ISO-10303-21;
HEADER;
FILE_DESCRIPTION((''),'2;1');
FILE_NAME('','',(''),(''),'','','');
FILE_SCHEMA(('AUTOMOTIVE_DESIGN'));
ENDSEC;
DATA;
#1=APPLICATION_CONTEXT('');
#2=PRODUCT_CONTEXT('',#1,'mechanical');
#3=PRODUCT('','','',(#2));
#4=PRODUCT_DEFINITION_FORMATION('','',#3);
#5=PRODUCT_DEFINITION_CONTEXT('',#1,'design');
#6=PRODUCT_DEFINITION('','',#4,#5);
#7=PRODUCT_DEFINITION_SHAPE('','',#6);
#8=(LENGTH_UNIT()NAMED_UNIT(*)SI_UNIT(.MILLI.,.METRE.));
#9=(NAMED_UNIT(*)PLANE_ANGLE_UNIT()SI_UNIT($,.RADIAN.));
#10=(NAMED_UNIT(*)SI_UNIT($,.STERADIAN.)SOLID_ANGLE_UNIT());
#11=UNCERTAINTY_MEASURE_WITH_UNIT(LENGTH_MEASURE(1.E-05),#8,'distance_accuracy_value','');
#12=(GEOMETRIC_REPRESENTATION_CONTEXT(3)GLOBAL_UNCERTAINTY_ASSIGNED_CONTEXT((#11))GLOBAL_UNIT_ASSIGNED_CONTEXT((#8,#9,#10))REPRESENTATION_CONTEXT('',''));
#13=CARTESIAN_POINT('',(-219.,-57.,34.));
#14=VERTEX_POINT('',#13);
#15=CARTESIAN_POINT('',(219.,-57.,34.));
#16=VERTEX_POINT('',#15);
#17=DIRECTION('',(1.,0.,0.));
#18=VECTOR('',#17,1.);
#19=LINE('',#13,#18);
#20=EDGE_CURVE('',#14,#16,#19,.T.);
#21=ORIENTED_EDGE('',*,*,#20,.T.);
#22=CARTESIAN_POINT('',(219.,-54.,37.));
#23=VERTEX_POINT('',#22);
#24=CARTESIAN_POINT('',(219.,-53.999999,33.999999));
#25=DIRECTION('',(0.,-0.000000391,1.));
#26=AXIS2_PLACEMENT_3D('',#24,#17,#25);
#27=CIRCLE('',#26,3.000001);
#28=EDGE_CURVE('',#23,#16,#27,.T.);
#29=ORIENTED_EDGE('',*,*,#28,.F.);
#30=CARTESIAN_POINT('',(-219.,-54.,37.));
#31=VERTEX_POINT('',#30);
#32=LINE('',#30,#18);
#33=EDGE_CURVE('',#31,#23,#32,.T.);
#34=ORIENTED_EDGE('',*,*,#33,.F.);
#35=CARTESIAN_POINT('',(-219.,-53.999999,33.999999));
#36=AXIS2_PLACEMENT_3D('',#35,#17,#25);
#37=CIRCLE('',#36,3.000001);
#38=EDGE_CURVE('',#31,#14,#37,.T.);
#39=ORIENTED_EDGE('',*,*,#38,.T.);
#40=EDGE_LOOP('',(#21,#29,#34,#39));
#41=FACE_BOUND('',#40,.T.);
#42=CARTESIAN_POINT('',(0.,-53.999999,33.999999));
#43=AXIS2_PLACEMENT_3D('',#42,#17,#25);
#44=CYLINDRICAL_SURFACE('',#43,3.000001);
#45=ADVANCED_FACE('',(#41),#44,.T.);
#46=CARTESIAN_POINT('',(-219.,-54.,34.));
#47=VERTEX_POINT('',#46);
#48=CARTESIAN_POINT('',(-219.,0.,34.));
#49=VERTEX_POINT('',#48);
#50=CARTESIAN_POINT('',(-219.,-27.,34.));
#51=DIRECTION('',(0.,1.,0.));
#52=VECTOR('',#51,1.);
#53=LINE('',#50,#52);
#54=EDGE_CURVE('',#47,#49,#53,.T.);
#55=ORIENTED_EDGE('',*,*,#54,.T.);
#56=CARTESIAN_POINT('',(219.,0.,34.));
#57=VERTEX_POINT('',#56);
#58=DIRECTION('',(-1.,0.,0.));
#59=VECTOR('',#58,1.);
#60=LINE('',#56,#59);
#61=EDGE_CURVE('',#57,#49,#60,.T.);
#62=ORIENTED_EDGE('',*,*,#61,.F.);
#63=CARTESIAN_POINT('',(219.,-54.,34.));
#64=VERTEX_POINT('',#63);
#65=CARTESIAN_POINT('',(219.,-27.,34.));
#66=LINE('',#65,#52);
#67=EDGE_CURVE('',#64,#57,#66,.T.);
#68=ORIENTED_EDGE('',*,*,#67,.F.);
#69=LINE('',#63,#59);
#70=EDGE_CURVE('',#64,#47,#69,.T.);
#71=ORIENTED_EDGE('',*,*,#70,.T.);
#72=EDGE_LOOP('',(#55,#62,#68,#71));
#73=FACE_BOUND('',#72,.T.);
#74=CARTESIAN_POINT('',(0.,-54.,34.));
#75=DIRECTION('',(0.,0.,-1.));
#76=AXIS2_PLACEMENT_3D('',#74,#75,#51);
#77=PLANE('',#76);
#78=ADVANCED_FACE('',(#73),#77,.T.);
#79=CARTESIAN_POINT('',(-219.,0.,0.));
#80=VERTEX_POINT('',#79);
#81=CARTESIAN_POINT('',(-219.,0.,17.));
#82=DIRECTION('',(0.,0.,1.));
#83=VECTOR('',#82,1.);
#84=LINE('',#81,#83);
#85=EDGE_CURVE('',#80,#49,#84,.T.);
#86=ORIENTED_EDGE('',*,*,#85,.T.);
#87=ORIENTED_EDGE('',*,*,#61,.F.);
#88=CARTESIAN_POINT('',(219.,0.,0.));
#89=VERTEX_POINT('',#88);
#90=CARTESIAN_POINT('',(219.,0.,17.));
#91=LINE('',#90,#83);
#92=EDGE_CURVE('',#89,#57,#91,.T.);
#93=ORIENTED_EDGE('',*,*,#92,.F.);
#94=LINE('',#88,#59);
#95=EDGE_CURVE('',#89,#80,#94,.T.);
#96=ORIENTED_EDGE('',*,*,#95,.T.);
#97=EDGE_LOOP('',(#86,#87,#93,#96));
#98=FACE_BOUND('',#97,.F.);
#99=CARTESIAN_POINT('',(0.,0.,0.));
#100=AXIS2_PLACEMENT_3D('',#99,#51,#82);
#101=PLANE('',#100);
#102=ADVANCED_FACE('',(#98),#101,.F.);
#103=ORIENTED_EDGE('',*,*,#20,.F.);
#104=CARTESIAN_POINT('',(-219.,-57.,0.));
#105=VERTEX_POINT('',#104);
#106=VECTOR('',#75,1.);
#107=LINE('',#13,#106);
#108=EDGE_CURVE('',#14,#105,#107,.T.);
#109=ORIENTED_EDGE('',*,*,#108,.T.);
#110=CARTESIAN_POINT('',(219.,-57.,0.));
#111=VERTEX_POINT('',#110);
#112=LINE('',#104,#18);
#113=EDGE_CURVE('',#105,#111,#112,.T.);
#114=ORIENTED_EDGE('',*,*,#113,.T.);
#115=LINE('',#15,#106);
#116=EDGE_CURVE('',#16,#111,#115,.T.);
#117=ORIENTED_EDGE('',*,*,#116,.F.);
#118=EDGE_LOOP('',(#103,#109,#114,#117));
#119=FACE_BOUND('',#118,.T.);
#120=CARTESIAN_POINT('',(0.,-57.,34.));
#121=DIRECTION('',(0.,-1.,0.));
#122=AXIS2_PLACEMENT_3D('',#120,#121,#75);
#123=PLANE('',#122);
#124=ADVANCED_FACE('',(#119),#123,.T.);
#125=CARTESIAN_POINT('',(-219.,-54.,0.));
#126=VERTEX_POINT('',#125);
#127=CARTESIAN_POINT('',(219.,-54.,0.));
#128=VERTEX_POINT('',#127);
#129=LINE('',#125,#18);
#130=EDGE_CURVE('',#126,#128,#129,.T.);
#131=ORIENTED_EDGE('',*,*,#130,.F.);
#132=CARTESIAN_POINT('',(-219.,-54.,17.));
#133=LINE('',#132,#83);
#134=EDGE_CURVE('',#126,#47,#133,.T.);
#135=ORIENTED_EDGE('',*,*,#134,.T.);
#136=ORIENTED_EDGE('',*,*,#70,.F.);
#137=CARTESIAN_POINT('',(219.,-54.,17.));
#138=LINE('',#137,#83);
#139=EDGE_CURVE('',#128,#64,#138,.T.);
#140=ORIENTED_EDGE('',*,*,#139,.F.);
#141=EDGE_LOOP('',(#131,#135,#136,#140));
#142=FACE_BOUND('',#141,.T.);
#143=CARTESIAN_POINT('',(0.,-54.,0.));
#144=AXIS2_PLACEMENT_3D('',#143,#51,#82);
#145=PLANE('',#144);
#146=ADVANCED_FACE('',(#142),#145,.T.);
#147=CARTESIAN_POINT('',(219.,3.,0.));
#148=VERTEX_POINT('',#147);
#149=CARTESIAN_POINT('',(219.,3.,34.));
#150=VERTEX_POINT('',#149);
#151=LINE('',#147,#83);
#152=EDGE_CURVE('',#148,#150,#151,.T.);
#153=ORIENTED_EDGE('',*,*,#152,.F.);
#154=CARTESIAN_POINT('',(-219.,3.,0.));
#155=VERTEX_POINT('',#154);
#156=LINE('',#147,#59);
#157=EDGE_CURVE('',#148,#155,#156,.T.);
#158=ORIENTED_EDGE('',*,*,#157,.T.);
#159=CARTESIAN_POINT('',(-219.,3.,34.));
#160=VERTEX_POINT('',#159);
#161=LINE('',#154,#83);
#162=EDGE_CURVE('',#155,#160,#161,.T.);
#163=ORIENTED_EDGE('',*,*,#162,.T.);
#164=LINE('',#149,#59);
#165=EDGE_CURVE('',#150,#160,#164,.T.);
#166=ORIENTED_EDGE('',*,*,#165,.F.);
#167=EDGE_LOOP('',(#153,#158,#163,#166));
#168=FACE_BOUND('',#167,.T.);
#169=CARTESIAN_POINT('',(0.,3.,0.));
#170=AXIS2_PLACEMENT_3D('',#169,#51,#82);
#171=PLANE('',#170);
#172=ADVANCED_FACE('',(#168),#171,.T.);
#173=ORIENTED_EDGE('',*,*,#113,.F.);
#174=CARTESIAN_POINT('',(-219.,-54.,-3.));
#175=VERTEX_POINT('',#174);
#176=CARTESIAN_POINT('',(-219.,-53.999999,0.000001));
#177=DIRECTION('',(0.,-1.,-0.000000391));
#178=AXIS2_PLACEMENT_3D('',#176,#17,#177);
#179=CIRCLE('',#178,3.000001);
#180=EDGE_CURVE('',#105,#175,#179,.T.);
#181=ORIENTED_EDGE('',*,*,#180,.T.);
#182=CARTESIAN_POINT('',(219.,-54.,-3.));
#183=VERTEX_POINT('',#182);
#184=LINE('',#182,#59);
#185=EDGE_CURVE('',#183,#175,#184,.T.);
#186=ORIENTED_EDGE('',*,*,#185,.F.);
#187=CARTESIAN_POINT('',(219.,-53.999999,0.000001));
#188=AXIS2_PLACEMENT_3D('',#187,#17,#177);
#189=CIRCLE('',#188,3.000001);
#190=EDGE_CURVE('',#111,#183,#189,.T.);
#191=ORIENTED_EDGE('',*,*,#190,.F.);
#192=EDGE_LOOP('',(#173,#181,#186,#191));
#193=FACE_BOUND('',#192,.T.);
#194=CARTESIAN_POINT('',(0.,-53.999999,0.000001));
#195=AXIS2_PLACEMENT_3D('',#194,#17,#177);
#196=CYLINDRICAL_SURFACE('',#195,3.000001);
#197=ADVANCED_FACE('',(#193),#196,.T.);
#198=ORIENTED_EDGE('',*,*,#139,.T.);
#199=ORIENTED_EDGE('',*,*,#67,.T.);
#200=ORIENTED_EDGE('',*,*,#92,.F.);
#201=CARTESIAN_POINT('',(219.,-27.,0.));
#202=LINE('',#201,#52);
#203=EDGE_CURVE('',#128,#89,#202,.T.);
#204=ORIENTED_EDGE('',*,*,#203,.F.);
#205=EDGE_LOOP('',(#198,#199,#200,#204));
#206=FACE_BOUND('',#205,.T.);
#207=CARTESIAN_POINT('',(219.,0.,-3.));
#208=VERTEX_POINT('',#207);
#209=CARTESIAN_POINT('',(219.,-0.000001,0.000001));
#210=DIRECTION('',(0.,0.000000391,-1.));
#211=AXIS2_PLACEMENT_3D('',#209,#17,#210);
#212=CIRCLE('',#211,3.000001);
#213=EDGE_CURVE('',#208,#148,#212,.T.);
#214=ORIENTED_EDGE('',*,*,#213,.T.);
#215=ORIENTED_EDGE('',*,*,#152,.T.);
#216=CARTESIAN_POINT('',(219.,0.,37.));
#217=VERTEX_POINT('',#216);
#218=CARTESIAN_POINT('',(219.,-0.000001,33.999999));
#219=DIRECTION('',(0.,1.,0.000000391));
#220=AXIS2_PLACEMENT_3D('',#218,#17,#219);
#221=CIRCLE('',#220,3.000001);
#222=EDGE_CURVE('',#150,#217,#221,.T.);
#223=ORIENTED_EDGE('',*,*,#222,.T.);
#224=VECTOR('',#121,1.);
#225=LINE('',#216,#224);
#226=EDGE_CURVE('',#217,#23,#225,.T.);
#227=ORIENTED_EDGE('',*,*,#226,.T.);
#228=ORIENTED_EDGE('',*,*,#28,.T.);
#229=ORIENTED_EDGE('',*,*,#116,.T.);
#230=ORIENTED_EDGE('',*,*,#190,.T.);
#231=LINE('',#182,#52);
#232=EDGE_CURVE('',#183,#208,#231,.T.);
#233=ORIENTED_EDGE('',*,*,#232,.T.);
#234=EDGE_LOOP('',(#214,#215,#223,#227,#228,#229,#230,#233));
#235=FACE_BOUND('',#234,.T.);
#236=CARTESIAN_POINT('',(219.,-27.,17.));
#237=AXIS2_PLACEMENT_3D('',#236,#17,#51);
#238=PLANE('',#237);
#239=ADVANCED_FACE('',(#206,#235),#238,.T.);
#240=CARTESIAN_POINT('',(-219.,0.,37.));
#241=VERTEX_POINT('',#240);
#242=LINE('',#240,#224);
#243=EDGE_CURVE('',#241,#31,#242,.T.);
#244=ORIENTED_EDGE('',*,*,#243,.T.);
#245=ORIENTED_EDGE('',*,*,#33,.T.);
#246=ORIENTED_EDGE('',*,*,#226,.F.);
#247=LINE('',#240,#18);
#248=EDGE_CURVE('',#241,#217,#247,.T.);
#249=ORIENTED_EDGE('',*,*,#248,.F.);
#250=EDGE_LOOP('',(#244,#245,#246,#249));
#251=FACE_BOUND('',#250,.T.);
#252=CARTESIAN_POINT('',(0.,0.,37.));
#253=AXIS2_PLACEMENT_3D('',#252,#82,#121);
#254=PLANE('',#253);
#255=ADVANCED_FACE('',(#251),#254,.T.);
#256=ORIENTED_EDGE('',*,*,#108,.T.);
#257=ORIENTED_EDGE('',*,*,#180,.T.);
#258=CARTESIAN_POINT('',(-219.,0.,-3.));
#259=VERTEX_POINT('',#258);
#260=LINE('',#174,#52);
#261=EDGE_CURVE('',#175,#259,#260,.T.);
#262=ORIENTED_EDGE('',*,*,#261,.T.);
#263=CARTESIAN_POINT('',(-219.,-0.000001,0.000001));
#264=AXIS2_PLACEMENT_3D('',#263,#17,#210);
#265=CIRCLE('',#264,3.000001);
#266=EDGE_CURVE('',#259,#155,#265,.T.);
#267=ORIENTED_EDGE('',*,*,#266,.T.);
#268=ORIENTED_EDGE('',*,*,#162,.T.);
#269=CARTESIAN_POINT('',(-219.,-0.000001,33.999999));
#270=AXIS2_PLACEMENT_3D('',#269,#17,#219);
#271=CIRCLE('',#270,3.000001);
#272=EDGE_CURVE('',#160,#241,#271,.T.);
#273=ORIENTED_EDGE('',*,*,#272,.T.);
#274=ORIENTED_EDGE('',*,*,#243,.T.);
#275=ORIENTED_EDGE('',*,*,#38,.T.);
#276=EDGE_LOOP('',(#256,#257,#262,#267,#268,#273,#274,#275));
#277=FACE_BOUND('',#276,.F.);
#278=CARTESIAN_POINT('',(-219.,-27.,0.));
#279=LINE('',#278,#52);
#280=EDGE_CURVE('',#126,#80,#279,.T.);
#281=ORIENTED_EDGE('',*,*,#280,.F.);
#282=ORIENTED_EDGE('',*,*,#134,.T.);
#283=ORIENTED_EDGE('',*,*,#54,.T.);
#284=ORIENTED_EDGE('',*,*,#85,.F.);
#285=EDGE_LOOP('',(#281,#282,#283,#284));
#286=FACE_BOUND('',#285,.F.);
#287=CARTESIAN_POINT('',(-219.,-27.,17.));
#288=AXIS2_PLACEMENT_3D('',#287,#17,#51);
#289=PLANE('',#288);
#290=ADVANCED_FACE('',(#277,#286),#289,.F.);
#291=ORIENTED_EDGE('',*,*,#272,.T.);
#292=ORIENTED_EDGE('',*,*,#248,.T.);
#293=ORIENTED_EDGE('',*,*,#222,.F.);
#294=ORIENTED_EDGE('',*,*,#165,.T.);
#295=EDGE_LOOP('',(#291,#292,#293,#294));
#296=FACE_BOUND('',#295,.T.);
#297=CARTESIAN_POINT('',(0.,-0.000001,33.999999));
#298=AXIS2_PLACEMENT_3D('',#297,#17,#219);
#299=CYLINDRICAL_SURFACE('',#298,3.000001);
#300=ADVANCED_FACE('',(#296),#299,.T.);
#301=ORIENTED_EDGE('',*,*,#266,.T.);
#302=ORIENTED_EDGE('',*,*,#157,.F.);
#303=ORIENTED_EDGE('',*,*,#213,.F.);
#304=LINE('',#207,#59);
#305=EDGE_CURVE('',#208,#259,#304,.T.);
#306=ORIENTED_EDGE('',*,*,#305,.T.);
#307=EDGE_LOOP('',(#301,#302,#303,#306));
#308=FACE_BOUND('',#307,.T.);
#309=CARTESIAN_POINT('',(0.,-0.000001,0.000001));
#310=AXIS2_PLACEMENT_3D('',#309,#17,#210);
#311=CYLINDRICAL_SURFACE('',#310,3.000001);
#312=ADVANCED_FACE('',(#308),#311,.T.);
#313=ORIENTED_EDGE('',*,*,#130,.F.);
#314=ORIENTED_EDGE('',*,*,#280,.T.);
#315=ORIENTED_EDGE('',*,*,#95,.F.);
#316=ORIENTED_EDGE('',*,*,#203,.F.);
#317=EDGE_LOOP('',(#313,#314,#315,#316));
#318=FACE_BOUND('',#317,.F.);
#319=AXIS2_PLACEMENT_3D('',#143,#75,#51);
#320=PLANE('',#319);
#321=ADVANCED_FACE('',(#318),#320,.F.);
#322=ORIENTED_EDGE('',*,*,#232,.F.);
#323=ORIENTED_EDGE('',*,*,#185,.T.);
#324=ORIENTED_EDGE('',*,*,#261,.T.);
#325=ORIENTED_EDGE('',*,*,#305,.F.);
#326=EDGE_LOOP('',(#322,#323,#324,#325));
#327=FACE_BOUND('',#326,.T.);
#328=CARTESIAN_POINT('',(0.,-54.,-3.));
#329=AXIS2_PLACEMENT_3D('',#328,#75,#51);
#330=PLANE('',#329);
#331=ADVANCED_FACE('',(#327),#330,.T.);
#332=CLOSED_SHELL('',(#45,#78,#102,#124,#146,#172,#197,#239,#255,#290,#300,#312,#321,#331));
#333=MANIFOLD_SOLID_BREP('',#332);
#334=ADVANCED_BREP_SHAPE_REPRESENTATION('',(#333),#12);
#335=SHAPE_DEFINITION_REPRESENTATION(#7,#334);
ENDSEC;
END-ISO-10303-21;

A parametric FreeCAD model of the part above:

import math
import FreeCAD as App
import Part
import Sketcher

doc = App.newDocument("Part")
body = doc.addObject("PartDesign::Body", "Body")

sketch1 = body.newObject("Sketcher::SketchObject", "Sketch")
sketch1.AttachmentSupport = (doc.getObject("YZ_Plane"), [""])
sketch1.MapMode = "FlatFace"
sketch1.addGeometry(Part.ArcOfCircle(Part.Circle(App.Vector(0, 34, 0), App.Vector(0, 0, 1), 3), math.radians(0), math.radians(90)), False)
sketch1.addGeometry(Part.LineSegment(App.Vector(0, 37, 0), App.Vector(-54, 37, 0)), False)
sketch1.addGeometry(Part.ArcOfCircle(Part.Circle(App.Vector(-54, 34, 0), App.Vector(0, 0, 1), 3), math.radians(90), math.radians(180)), False)
sketch1.addGeometry(Part.LineSegment(App.Vector(-57, 34, 0), App.Vector(-57, 0, 0)), False)
sketch1.addGeometry(Part.ArcOfCircle(Part.Circle(App.Vector(-54, 0, 0), App.Vector(0, 0, 1), 3), math.radians(-180), math.radians(-90)), False)
sketch1.addGeometry(Part.LineSegment(App.Vector(-54, -3, 0), App.Vector(0, -3, 0)), False)
sketch1.addGeometry(Part.ArcOfCircle(Part.Circle(App.Vector(0, 0, 0), App.Vector(0, 0, 1), 3), math.radians(-90), math.radians(0)), False)
sketch1.addGeometry(Part.LineSegment(App.Vector(3, 0, 0), App.Vector(3, 34, 0)), False)
sketch1.addGeometry(Part.LineSegment(App.Vector(0, 0, 0), App.Vector(-54, 0, 0)), False)
sketch1.addGeometry(Part.LineSegment(App.Vector(-54, 0, 0), App.Vector(-54, 34, 0)), False)
sketch1.addGeometry(Part.LineSegment(App.Vector(-54, 34, 0), App.Vector(0, 34, 0)), False)
sketch1.addGeometry(Part.LineSegment(App.Vector(0, 34, 0), App.Vector(0, 0, 0)), False)
sketch1.addConstraint(Sketcher.Constraint("Tangent", 0, 2, 1, 1))
sketch1.addConstraint(Sketcher.Constraint("Tangent", 1, 2, 2, 1))
sketch1.addConstraint(Sketcher.Constraint("Tangent", 2, 2, 3, 1))
sketch1.addConstraint(Sketcher.Constraint("Tangent", 3, 2, 4, 1))
sketch1.addConstraint(Sketcher.Constraint("Tangent", 4, 2, 5, 1))
sketch1.addConstraint(Sketcher.Constraint("Tangent", 5, 2, 6, 1))
sketch1.addConstraint(Sketcher.Constraint("Tangent", 6, 2, 7, 1))
sketch1.addConstraint(Sketcher.Constraint("Tangent", 7, 2, 0, 1))
sketch1.addConstraint(Sketcher.Constraint("Coincident", 8, 2, 9, 1))
sketch1.addConstraint(Sketcher.Constraint("Coincident", 9, 2, 10, 1))
sketch1.addConstraint(Sketcher.Constraint("Coincident", 10, 2, 11, 1))
sketch1.addConstraint(Sketcher.Constraint("Coincident", 11, 2, 8, 1))
sketch1.addConstraint(Sketcher.Constraint("Horizontal", 1))
sketch1.addConstraint(Sketcher.Constraint("Vertical", 3))
sketch1.addConstraint(Sketcher.Constraint("Horizontal", 5))
sketch1.addConstraint(Sketcher.Constraint("Vertical", 7))
sketch1.addConstraint(Sketcher.Constraint("Horizontal", 8))
sketch1.addConstraint(Sketcher.Constraint("Vertical", 9))
sketch1.addConstraint(Sketcher.Constraint("Horizontal", 10))
sketch1.addConstraint(Sketcher.Constraint("Vertical", 11))
sketch1.addConstraint(Sketcher.Constraint("Coincident", 6, 3, -1, 1))
sketch1.addConstraint(Sketcher.Constraint("Coincident", 11, 2, -1, 1))
sketch1.addConstraint(Sketcher.Constraint("Coincident", 8, 2, 4, 3))
sketch1.addConstraint(Sketcher.Constraint("Coincident", 9, 2, 2, 3))
sketch1.addConstraint(Sketcher.Constraint("Equal", 0, 2))
sketch1.addConstraint(Sketcher.Constraint("Radius", 0, 3.000001))
sketch1.addConstraint(Sketcher.Constraint("DistanceX", 1, 2, 1, 1, 54.0))
sketch1.addConstraint(Sketcher.Constraint("DistanceY", 3, 2, 3, 1, 34.0))
pad1 = body.newObject("PartDesign::Pad", "Pad")
pad1.Profile = sketch1
pad1.Length = 438
pad1.Midplane = True

doc.recompute()
